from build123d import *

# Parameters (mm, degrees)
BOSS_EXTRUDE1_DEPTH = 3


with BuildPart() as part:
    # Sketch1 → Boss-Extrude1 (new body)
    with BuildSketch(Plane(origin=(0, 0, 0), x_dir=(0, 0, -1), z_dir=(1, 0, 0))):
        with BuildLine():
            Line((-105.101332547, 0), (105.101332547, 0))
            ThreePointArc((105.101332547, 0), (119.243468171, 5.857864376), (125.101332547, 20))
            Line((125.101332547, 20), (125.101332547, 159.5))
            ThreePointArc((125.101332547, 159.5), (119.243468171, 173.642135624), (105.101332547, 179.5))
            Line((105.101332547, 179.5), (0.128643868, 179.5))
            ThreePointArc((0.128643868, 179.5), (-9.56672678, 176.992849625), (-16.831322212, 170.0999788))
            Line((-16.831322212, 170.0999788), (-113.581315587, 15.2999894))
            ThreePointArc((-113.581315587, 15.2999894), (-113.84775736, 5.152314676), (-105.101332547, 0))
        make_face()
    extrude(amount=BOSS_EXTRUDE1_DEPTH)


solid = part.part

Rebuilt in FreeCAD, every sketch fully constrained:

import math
import FreeCAD as App
import Part
import Sketcher
from FreeCAD import Vector
Q = App.Units.Quantity

doc = App.newDocument("Part")
params = doc.addObject("Spreadsheet::Sheet", "Params")
for row, (alias, value) in enumerate([
    ("sketch1_radius", "20 mm"),
    ("sketch1_radius2", "10 mm"),
    ("sketch1_width", "139.5 mm"),
    ("pad1_length", "3 mm"),
], start=1):
    params.set(f"A{row}", alias)
    params.set(f"B{row}", "=" + value)
    params.setAlias(f"B{row}", alias)

body = doc.addObject("PartDesign::Body", "Body")

# Sketch on YZ plane
sketch1 = body.newObject("Sketcher::SketchObject", "Sketch")
sketch1.AttachmentSupport = (doc.getObject("YZ_Plane"), [""])
sketch1.MapMode = "FlatFace"
sketch1.addGeometry([
    Part.LineSegment(Vector(0, 105, 0), Vector(0, -105, 0)),  # 0
    Part.ArcOfCircle(Part.Circle(Vector(20, -105, 0), Vector(0, 0, 1), 20), math.radians(180), math.radians(270)),  # 1
    Part.LineSegment(Vector(20, -125, 0), Vector(160, -125, 0)),  # 2
    Part.ArcOfCircle(Part.Circle(Vector(160, -105, 0), Vector(0, 0, 1), 20), math.radians(-90), math.radians(0)),  # 3
    Part.LineSegment(Vector(180, -105, 0), Vector(180, 0, 0)),  # 4
    Part.ArcOfCircle(Part.Circle(Vector(160, 0, 0), Vector(0, 0, 1), 20), math.radians(0), math.radians(58)),  # 5
    Part.LineSegment(Vector(170, 17, 0), Vector(15, 114, 0)),  # 6
    Part.ArcOfCircle(Part.Circle(Vector(10, 105, 0), Vector(0, 0, 1), 10), math.radians(58), math.radians(180)),  # 7
], False)
sketch1.addConstraint([
    Sketcher.Constraint("Tangent", 0, 2, 1, 1),
    Sketcher.Constraint("Tangent", 1, 2, 2, 1),
    Sketcher.Constraint("Tangent", 2, 2, 3, 1),
    Sketcher.Constraint("Tangent", 3, 2, 4, 1),
    Sketcher.Constraint("Tangent", 4, 2, 5, 1),
    Sketcher.Constraint("Tangent", 5, 2, 6, 1),
    Sketcher.Constraint("Tangent", 6, 2, 7, 1),
    Sketcher.Constraint("Tangent", 7, 2, 0, 1),
    Sketcher.Constraint("Vertical", 0),
    Sketcher.Constraint("Horizontal", 2),
    Sketcher.Constraint("Vertical", 4),
    Sketcher.Constraint("Equal", 1, 3),
    Sketcher.Constraint("Equal", 3, 5),
    Sketcher.Constraint("Symmetric", 0, 2, 7, 2, -1, 1),
    Sketcher.Constraint("Radius", 1, Q("20 mm")),
    Sketcher.Constraint("Radius", 7, Q("10 mm")),
    Sketcher.Constraint("DistanceX", 2, 1, 2, 2, Q("139.5 mm")),
    Sketcher.Constraint("DistanceY", 4, 1, 4, 2, Q("104.972689 mm")),
    Sketcher.Constraint("DistanceY", 0, 2, 0, 1, Q("210.202665 mm")),
])
sketch1.setExpression("Constraints[14]", "Params.sketch1_radius")
sketch1.setExpression("Constraints[15]", "Params.sketch1_radius2")
sketch1.setExpression("Constraints[16]", "Params.sketch1_width")
pad1 = body.newObject("PartDesign::Pad", "Pad")
pad1.Profile = sketch1
pad1.setExpression("Length", "Params.pad1_length")

doc.recompute()
